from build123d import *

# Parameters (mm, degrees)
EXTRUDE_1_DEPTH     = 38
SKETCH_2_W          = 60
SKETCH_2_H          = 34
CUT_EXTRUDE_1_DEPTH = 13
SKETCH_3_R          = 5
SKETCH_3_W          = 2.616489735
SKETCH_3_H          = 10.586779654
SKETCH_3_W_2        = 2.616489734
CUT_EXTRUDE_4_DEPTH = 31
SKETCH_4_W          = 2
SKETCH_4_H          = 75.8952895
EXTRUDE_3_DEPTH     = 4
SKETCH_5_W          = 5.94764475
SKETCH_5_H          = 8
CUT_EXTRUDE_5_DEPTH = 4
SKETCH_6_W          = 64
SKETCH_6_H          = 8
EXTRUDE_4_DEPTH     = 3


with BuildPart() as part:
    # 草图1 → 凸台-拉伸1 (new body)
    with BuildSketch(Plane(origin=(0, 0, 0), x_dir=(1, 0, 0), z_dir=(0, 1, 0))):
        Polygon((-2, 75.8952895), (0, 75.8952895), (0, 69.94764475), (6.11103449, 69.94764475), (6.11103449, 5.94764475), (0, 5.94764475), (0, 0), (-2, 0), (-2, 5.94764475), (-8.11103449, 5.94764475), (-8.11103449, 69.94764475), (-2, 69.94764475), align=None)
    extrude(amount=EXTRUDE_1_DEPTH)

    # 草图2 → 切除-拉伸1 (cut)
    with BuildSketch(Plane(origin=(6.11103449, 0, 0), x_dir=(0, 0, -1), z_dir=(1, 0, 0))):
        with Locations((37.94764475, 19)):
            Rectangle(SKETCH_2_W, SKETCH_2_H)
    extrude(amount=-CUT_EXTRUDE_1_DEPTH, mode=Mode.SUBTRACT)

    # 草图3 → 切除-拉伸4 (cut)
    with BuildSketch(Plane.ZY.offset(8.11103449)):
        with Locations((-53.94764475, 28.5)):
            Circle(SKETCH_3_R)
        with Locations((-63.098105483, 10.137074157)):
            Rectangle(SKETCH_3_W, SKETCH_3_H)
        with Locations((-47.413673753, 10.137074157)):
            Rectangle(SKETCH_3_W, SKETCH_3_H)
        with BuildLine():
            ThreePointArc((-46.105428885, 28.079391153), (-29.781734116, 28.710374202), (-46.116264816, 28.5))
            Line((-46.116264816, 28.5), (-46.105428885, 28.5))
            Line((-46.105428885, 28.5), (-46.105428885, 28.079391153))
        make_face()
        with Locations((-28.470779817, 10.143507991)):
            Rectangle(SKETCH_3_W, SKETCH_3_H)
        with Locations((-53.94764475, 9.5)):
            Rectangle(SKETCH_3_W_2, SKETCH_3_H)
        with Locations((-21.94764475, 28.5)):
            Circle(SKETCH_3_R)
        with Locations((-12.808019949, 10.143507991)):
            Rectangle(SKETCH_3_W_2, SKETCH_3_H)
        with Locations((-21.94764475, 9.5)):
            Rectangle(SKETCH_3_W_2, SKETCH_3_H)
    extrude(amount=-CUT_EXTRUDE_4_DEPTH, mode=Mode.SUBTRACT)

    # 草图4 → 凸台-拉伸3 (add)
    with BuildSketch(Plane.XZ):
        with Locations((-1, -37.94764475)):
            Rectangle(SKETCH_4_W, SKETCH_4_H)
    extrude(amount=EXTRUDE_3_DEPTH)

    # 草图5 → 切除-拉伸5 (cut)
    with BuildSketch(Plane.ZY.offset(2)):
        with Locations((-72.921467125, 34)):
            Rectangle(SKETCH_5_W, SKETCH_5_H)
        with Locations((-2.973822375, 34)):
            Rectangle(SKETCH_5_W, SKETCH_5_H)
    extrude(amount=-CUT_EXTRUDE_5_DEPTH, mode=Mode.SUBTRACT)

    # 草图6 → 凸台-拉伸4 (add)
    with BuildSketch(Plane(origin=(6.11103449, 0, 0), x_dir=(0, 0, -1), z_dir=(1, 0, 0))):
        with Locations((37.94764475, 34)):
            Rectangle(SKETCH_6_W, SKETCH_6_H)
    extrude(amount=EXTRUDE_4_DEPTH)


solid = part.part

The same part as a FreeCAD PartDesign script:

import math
import FreeCAD as App
import Part
import Sketcher

V = App.Vector

doc = App.newDocument("Part")
body = doc.addObject("PartDesign::Body", "Body")

sketch1 = doc.addObject("Sketcher::SketchObject", "Sketch")
body.addObject(sketch1)
sketch1.AttachmentSupport = (doc.XZ_Plane, [""])
sketch1.MapMode = "FlatFace"
sketch1.addGeometry(Part.LineSegment(V(0, -75.9, 0), V(-2, -75.9, 0)), False)
sketch1.addGeometry(Part.LineSegment(V(-2, -75.9, 0), V(-2, -69.9, 0)), False)
sketch1.addGeometry(Part.LineSegment(V(-2, -69.9, 0), V(-8.1, -69.9, 0)), False)
sketch1.addGeometry(Part.LineSegment(V(-8.1, -69.9, 0), V(-8.1, -5.9, 0)), False)
sketch1.addGeometry(Part.LineSegment(V(-8.1, -5.9, 0), V(-2, -5.9, 0)), False)
sketch1.addGeometry(Part.LineSegment(V(-2, -5.9, 0), V(-2, 0, 0)), False)
sketch1.addGeometry(Part.LineSegment(V(-2, 0, 0), V(0, 0, 0)), False)
sketch1.addGeometry(Part.LineSegment(V(0, 0, 0), V(0, -5.9, 0)), False)
sketch1.addGeometry(Part.LineSegment(V(0, -5.9, 0), V(6.1, -5.9, 0)), False)
sketch1.addGeometry(Part.LineSegment(V(6.1, -5.9, 0), V(6.1, -69.9, 0)), False)
sketch1.addGeometry(Part.LineSegment(V(6.1, -69.9, 0), V(0, -69.9, 0)), False)
sketch1.addGeometry(Part.LineSegment(V(0, -69.9, 0), V(0, -75.9, 0)), False)
sketch1.addConstraint(Sketcher.Constraint("Coincident", 0, 2, 1, 1))
sketch1.addConstraint(Sketcher.Constraint("Coincident", 1, 2, 2, 1))
sketch1.addConstraint(Sketcher.Constraint("Coincident", 2, 2, 3, 1))
sketch1.addConstraint(Sketcher.Constraint("Coincident", 3, 2, 4, 1))
sketch1.addConstraint(Sketcher.Constraint("Coincident", 4, 2, 5, 1))
sketch1.addConstraint(Sketcher.Constraint("Coincident", 5, 2, 6, 1))
sketch1.addConstraint(Sketcher.Constraint("Coincident", 6, 2, 7, 1))
sketch1.addConstraint(Sketcher.Constraint("Coincident", 7, 2, 8, 1))
sketch1.addConstraint(Sketcher.Constraint("Coincident", 8, 2, 9, 1))
sketch1.addConstraint(Sketcher.Constraint("Coincident", 9, 2, 10, 1))
sketch1.addConstraint(Sketcher.Constraint("Coincident", 10, 2, 11, 1))
sketch1.addConstraint(Sketcher.Constraint("Coincident", 11, 2, 0, 1))
sketch1.addConstraint(Sketcher.Constraint("Horizontal", 0))
sketch1.addConstraint(Sketcher.Constraint("Vertical", 1))
sketch1.addConstraint(Sketcher.Constraint("Horizontal", 2))
sketch1.addConstraint(Sketcher.Constraint("Vertical", 3))
sketch1.addConstraint(Sketcher.Constraint("Horizontal", 4))
sketch1.addConstraint(Sketcher.Constraint("Vertical", 5))
sketch1.addConstraint(Sketcher.Constraint("Horizontal", 6))
sketch1.addConstraint(Sketcher.Constraint("Vertical", 7))
sketch1.addConstraint(Sketcher.Constraint("Horizontal", 8))
sketch1.addConstraint(Sketcher.Constraint("Vertical", 9))
sketch1.addConstraint(Sketcher.Constraint("Horizontal", 10))
sketch1.addConstraint(Sketcher.Constraint("Vertical", 11))
sketch1.addConstraint(Sketcher.Constraint("Coincident", 6, 2, -1, 1))
sketch1.addConstraint(Sketcher.Constraint("PointOnObject", 10, 2, -2))
sketch1.addConstraint(Sketcher.Constraint("Horizontal", 4, 2, 7, 2))
sketch1.addConstraint(Sketcher.Constraint("Horizontal", 2, 2, 9, 2))
sketch1.addConstraint(Sketcher.Constraint("Vertical", 1, 2, 4, 2))
sketch1.addConstraint(Sketcher.Constraint("Equal", 4, 8))
sketch1.addConstraint(Sketcher.Constraint("Equal", 1, 5))
sketch1.addConstraint(Sketcher.Constraint("DistanceX", 0, 2, 0, 1, 2.0))
sketch1.addConstraint(Sketcher.Constraint("DistanceY", 3, 1, 3, 2, 64.0))
sketch1.addConstraint(Sketcher.Constraint("DistanceX", 2, 2, 2, 1, 6.111034))
sketch1.addConstraint(Sketcher.Constraint("DistanceY", 1, 1, 1, 2, 5.947645))
pad1 = doc.addObject("PartDesign::Pad", "Pad")
body.addObject(pad1)
pad1.Profile = sketch1
pad1.Length = 38
pad1.Reversed = True

sketch2 = doc.addObject("Sketcher::SketchObject", "Sketch001")
body.addObject(sketch2)
sketch2.AttachmentSupport = (doc.YZ_Plane, [""])
sketch2.MapMode = "FlatFace"
sketch2.AttachmentOffset = App.Placement(V(0, 0, 6.111034), App.Rotation())
sketch2.addGeometry(Part.LineSegment(V(36, -8, 0), V(2, -8, 0)), False)
sketch2.addGeometry(Part.LineSegment(V(2, -8, 0), V(2, -68, 0)), False)
sketch2.addGeometry(Part.LineSegment(V(2, -68, 0), V(36, -68, 0)), False)
sketch2.addGeometry(Part.LineSegment(V(36, -68, 0), V(36, -8, 0)), False)
sketch2.addConstraint(Sketcher.Constraint("Coincident", 0, 2, 1, 1))
sketch2.addConstraint(Sketcher.Constraint("Coincident", 1, 2, 2, 1))
sketch2.addConstraint(Sketcher.Constraint("Coincident", 2, 2, 3, 1))
sketch2.addConstraint(Sketcher.Constraint("Coincident", 3, 2, 0, 1))
sketch2.addConstraint(Sketcher.Constraint("Horizontal", 0))
sketch2.addConstraint(Sketcher.Constraint("Vertical", 1))
sketch2.addConstraint(Sketcher.Constraint("Horizontal", 2))
sketch2.addConstraint(Sketcher.Constraint("Vertical", 3))
sketch2.addConstraint(Sketcher.Constraint("DistanceX", 0, 2, 0, 1, 34.0))
sketch2.addConstraint(Sketcher.Constraint("DistanceY", 1, 2, 1, 1, 60.0))
sketch2.addConstraint(Sketcher.Constraint("DistanceX", -1, 1, 0, 2, 2.0))
sketch2.addConstraint(Sketcher.Constraint("DistanceY", 0, 2, -1, 1, 7.947645))
pocket1 = doc.addObject("PartDesign::Pocket", "Pocket")
body.addObject(pocket1)
pocket1.Profile = sketch2
pocket1.Length = 13

sketch3 = doc.addObject("Sketcher::SketchObject", "Sketch002")
body.addObject(sketch3)
sketch3.AttachmentSupport = (doc.YZ_Plane, [""])
sketch3.MapMode = "FlatFace"
sketch3.AttachmentOffset = App.Placement(V(0, 0, -8.111034), App.Rotation())
sketch3.addGeometry(Part.Circle(V(28.5, -53.948, 0), V(0, 0, 1), 5), False)
sketch3.addGeometry(Part.LineSegment(V(15.43, -64.406, 0), V(4.844, -64.406, 0)), False)
sketch3.addGeometry(Part.LineSegment(V(4.844, -64.406, 0), V(4.844, -61.79, 0)), False)
sketch3.addGeometry(Part.LineSegment(V(4.844, -61.79, 0), V(15.43, -61.79, 0)), False)
sketch3.addGeometry(Part.LineSegment(V(15.43, -61.79, 0), V(15.43, -64.406, 0)), False)
sketch3.addGeometry(Part.LineSegment(V(15.43, -48.722, 0), V(4.844, -48.722, 0)), False)
sketch3.addGeometry(Part.LineSegment(V(4.844, -48.722, 0), V(4.844, -46.105, 0)), False)
sketch3.addGeometry(Part.LineSegment(V(4.844, -46.105, 0), V(15.43, -46.105, 0)), False)
sketch3.addGeometry(Part.LineSegment(V(15.43, -46.105, 0), V(15.43, -48.722, 0)), False)
sketch3.addGeometry(Part.ArcOfCircle(Part.Circle(V(28.5, -37.948, 0), V(0, 0, 1), 8.169), math.radians(-90), math.radians(267)), False)
sketch3.addGeometry(Part.LineSegment(V(28.5, -46.116, 0), V(28.5, -46.105, 0)), False)
sketch3.addGeometry(Part.LineSegment(V(28.5, -46.105, 0), V(28.079, -46.105, 0)), False)
sketch3.addGeometry(Part.LineSegment(V(15.437, -29.779, 0), V(4.85, -29.779, 0)), False)
sketch3.addGeometry(Part.LineSegment(V(4.85, -29.779, 0), V(4.85, -27.163, 0)), False)
sketch3.addGeometry(Part.LineSegment(V(4.85, -27.163, 0), V(15.437, -27.163, 0)), False)
sketch3.addGeometry(Part.LineSegment(V(15.437, -27.163, 0), V(15.437, -29.779, 0)), False)
sketch3.addGeometry(Part.LineSegment(V(14.793, -55.256, 0), V(4.207, -55.256, 0)), False)
sketch3.addGeometry(Part.LineSegment(V(4.207, -55.256, 0), V(4.207, -52.639, 0)), False)
sketch3.addGeometry(Part.LineSegment(V(4.207, -52.639, 0), V(14.793, -52.639, 0)), False)
sketch3.addGeometry(Part.LineSegment(V(14.793, -52.639, 0), V(14.793, -55.256, 0)), False)
sketch3.addGeometry(Part.Circle(V(28.5, -21.948, 0), V(0, 0, 1), 5), False)
sketch3.addGeometry(Part.LineSegment(V(15.437, -14.116, 0), V(4.85, -14.116, 0)), False)
sketch3.addGeometry(Part.LineSegment(V(4.85, -14.116, 0), V(4.85, -11.5, 0)), False)
sketch3.addGeometry(Part.LineSegment(V(4.85, -11.5, 0), V(15.437, -11.5, 0)), False)
sketch3.addGeometry(Part.LineSegment(V(15.437, -11.5, 0), V(15.437, -14.116, 0)), False)
sketch3.addGeometry(Part.LineSegment(V(14.793, -23.256, 0), V(4.207, -23.256, 0)), False)
sketch3.addGeometry(Part.LineSegment(V(4.207, -23.256, 0), V(4.207, -20.639, 0)), False)
sketch3.addGeometry(Part.LineSegment(V(4.207, -20.639, 0), V(14.793, -20.639, 0)), False)
sketch3.addGeometry(Part.LineSegment(V(14.793, -20.639, 0), V(14.793, -23.256, 0)), False)
sketch3.addConstraint(Sketcher.Constraint("Coincident", 1, 2, 2, 1))
sketch3.addConstraint(Sketcher.Constraint("Coincident", 2, 2, 3, 1))
sketch3.addConstraint(Sketcher.Constraint("Coincident", 3, 2, 4, 1))
sketch3.addConstraint(Sketcher.Constraint("Coincident", 4, 2, 1, 1))
sketch3.addConstraint(Sketcher.Constraint("Coincident", 5, 2, 6, 1))
sketch3.addConstraint(Sketcher.Constraint("Coincident", 6, 2, 7, 1))
sketch3.addConstraint(Sketcher.Constraint("Coincident", 7, 2, 8, 1))
sketch3.addConstraint(Sketcher.Constraint("Coincident", 8, 2, 5, 1))
sketch3.addConstraint(Sketcher.Constraint("Coincident", 9, 1, 10, 1))
sketch3.addConstraint(Sketcher.Constraint("Coincident", 10, 2, 11, 1))
sketch3.addConstraint(Sketcher.Constraint("Coincident", 11, 2, 9, 2))
sketch3.addConstraint(Sketcher.Constraint("Coincident", 12, 2, 13, 1))
sketch3.addConstraint(Sketcher.Constraint("Coincident", 13, 2, 14, 1))
sketch3.addConstraint(Sketcher.Constraint("Coincident", 14, 2, 15, 1))
sketch3.addConstraint(Sketcher.Constraint("Coincident", 15, 2, 12, 1))
sketch3.addConstraint(Sketcher.Constraint("Coincident", 16, 2, 17, 1))
sketch3.addConstraint(Sketcher.Constraint("Coincident", 17, 2, 18, 1))
sketch3.addConstraint(Sketcher.Constraint("Coincident", 18, 2, 19, 1))
sketch3.addConstraint(Sketcher.Constraint("Coincident", 19, 2, 16, 1))
sketch3.addConstraint(Sketcher.Constraint("Coincident", 21, 2, 22, 1))
sketch3.addConstraint(Sketcher.Constraint("Coincident", 22, 2, 23, 1))
sketch3.addConstraint(Sketcher.Constraint("Coincident", 23, 2, 24, 1))
sketch3.addConstraint(Sketcher.Constraint("Coincident", 24, 2, 21, 1))
sketch3.addConstraint(Sketcher.Constraint("Coincident", 25, 2, 26, 1))
sketch3.addConstraint(Sketcher.Constraint("Coincident", 26, 2, 27, 1))
sketch3.addConstraint(Sketcher.Constraint("Coincident", 27, 2, 28, 1))
sketch3.addConstraint(Sketcher.Constraint("Coincident", 28, 2, 25, 1))
sketch3.addConstraint(Sketcher.Constraint("Horizontal", 1))
sketch3.addConstraint(Sketcher.Constraint("Vertical", 2))
sketch3.addConstraint(Sketcher.Constraint("Horizontal", 3))
sketch3.addConstraint(Sketcher.Constraint("Vertical", 4))
sketch3.addConstraint(Sketcher.Constraint("Horizontal", 5))
sketch3.addConstraint(Sketcher.Constraint("Vertical", 6))
sketch3.addConstraint(Sketcher.Constraint("Horizontal", 7))
sketch3.addConstraint(Sketcher.Constraint("Vertical", 8))
sketch3.addConstraint(Sketcher.Constraint("Vertical", 10))
sketch3.addConstraint(Sketcher.Constraint("Horizontal", 11))
sketch3.addConstraint(Sketcher.Constraint("Horizontal", 12))
sketch3.addConstraint(Sketcher.Constraint("Vertical", 13))
sketch3.addConstraint(Sketcher.Constraint("Horizontal", 14))
sketch3.addConstraint(Sketcher.Constraint("Vertical", 15))
sketch3.addConstraint(Sketcher.Constraint("Horizontal", 16))
sketch3.addConstraint(Sketcher.Constraint("Vertical", 17))
sketch3.addConstraint(Sketcher.Constraint("Horizontal", 18))
sketch3.addConstraint(Sketcher.Constraint("Vertical", 19))
sketch3.addConstraint(Sketcher.Constraint("Horizontal", 21))
sketch3.addConstraint(Sketcher.Constraint("Vertical", 22))
sketch3.addConstraint(Sketcher.Constraint("Horizontal", 23))
sketch3.addConstraint(Sketcher.Constraint("Vertical", 24))
sketch3.addConstraint(Sketcher.Constraint("Horizontal", 25))
sketch3.addConstraint(Sketcher.Constraint("Vertical", 26))
sketch3.addConstraint(Sketcher.Constraint("Horizontal", 27))
sketch3.addConstraint(Sketcher.Constraint("Vertical", 28))
sketch3.addConstraint(Sketcher.Constraint("Equal", 0, 20))
sketch3.addConstraint(Sketcher.Constraint("Horizontal", 7, 2, 10, 2))
sketch3.addConstraint(Sketcher.Constraint("Vertical", 0, 3, 9, 3))
sketch3.addConstraint(Sketcher.Constraint("Vertical", 9, 3, 20, 3))
sketch3.addConstraint(Sketcher.Constraint("Vertical", 2, 2, 5, 2))
sketch3.addConstraint(Sketcher.Constraint("Vertical", 4, 2, 7, 2))
sketch3.addConstraint(Sketcher.Constraint("Vertical", 20, 3, 9, 1))
sketch3.addConstraint(Sketcher.Constraint("Vertical", 13, 2, 21, 2))
sketch3.addConstraint(Sketcher.Constraint("Vertical", 15, 2, 23, 2))
sketch3.addConstraint(Sketcher.Constraint("Vertical", 17, 2, 25, 2))
sketch3.addConstraint(Sketcher.Constraint("Vertical", 19, 2, 27, 2))
sketch3.addConstraint(Sketcher.Constraint("Equal", 7, 12))
sketch3.addConstraint(Sketcher.Constraint("Equal", 14, 16))
sketch3.addConstraint(Sketcher.Constraint("Equal", 4, 6))
sketch3.addConstraint(Sketcher.Constraint("Equal", 8, 13))
sketch3.addConstraint(Sketcher.Constraint("Equal", 15, 17))
sketch3.addConstraint(Sketcher.Constraint("Equal", 19, 22))
sketch3.addConstraint(Sketcher.Constraint("Equal", 24, 26))
sketch3.addConstraint(Sketcher.Constraint("Diameter", 0, 10.0))
sketch3.addConstraint(Sketcher.Constraint("DistanceY", 0, 3, 9, 3, 16.0))
sketch3.addConstraint(Sketcher.Constraint("DistanceY", 9, 3, 20, 3, 16.0))
sketch3.addConstraint(Sketcher.Constraint("DistanceX", -1, 1, 0, 3, 28.5))
sketch3.addConstraint(Sketcher.Constraint("Radius", 9, 8.16862))
sketch3.addConstraint(Sketcher.Constraint("DistanceX", 1, 2, 1, 1, 10.58678))
sketch3.addConstraint(Sketcher.Constraint("DistanceX", 11, 2, 11, 1, 0.420609))
sketch3.addConstraint(Sketcher.Constraint("DistanceY", 2, 1, 2, 2, 2.61649))
sketch3.addConstraint(Sketcher.Constraint("DistanceY", 17, 2, -1, 1, 52.6394))
sketch3.addConstraint(Sketcher.Constraint("DistanceY", 26, 2, -1, 1, 20.6394))
sketch3.addConstraint(Sketcher.Constraint("DistanceY", 1, 2, -1, 1, 64.40635))
sketch3.addConstraint(Sketcher.Constraint("DistanceY", 5, 2, -1, 1, 48.721919))
sketch3.addConstraint(Sketcher.Constraint("DistanceX", -1, 1, 12, 2, 4.850118))
sketch3.addConstraint(Sketcher.Constraint("DistanceX", -1, 1, 16, 2, 4.20661))
sketch3.addConstraint(Sketcher.Constraint("DistanceY", 12, 2, 20, 3, 7.83138))
sketch3.addConstraint(Sketcher.Constraint("DistanceY", 13, 2, 21, 2, 13.04627))
sketch3.addConstraint(Sketcher.Constraint("DistanceX", -1, 1, 1, 2, 4.843684))
pocket2 = doc.addObject("PartDesign::Pocket", "Pocket001")
body.addObject(pocket2)
pocket2.Profile = sketch3
pocket2.Length = 31
pocket2.Reversed = True

sketch4 = doc.addObject("Sketcher::SketchObject", "Sketch003")
body.addObject(sketch4)
sketch4.AttachmentSupport = (doc.XZ_Plane, [""])
sketch4.MapMode = "FlatFace"
sketch4.addGeometry(Part.LineSegment(V(-2, 0, 0), V(-2, -75.9, 0)), False)
sketch4.addGeometry(Part.LineSegment(V(-2, -75.9, 0), V(0, -75.9, 0)), False)
sketch4.addGeometry(Part.LineSegment(V(0, -75.9, 0), V(0, 0, 0)), False)
sketch4.addGeometry(Part.LineSegment(V(0, 0, 0), V(-2, 0, 0)), False)
sketch4.addConstraint(Sketcher.Constraint("Coincident", 0, 2, 1, 1))
sketch4.addConstraint(Sketcher.Constraint("Coincident", 1, 2, 2, 1))
sketch4.addConstraint(Sketcher.Constraint("Coincident", 2, 2, 3, 1))
sketch4.addConstraint(Sketcher.Constraint("Coincident", 3, 2, 0, 1))
sketch4.addConstraint(Sketcher.Constraint("Vertical", 0))
sketch4.addConstraint(Sketcher.Constraint("Horizontal", 1))
sketch4.addConstraint(Sketcher.Constraint("Vertical", 2))
sketch4.addConstraint(Sketcher.Constraint("Horizontal", 3))
sketch4.addConstraint(Sketcher.Constraint("Coincident", 2, 2, -1, 1))
sketch4.addConstraint(Sketcher.Constraint("DistanceX", 1, 1, 1, 2, 2.0))
sketch4.addConstraint(Sketcher.Constraint("DistanceY", 0, 2, 0, 1, 75.89529))
pad2 = doc.addObject("PartDesign::Pad", "Pad001")
body.addObject(pad2)
pad2.Profile = sketch4
pad2.Length = 4

sketch5 = doc.addObject("Sketcher::SketchObject", "Sketch004")
body.addObject(sketch5)
sketch5.AttachmentSupport = (doc.YZ_Plane, [""])
sketch5.MapMode = "FlatFace"
sketch5.AttachmentOffset = App.Placement(V(0, 0, -2), App.Rotation())
sketch5.addGeometry(Part.LineSegment(V(38, -76, 0), V(30, -76, 0)), False)
sketch5.addGeometry(Part.LineSegment(V(30, -76, 0), V(30, -70, 0)), False)
sketch5.addGeometry(Part.LineSegment(V(30, -70, 0), V(38, -70, 0)), False)
sketch5.addGeometry(Part.LineSegment(V(38, -70, 0), V(38, -76, 0)), False)
sketch5.addGeometry(Part.LineSegment(V(38, -6, 0), V(30, -6, 0)), False)
sketch5.addGeometry(Part.LineSegment(V(30, -6, 0), V(30, 0, 0)), False)
sketch5.addGeometry(Part.LineSegment(V(30, 0, 0), V(38, 0, 0)), False)
sketch5.addGeometry(Part.LineSegment(V(38, 0, 0), V(38, -6, 0)), False)
sketch5.addConstraint(Sketcher.Constraint("Coincident", 0, 2, 1, 1))
sketch5.addConstraint(Sketcher.Constraint("Coincident", 1, 2, 2, 1))
sketch5.addConstraint(Sketcher.Constraint("Coincident", 2, 2, 3, 1))
sketch5.addConstraint(Sketcher.Constraint("Coincident", 3, 2, 0, 1))
sketch5.addConstraint(Sketcher.Constraint("Coincident", 4, 2, 5, 1))
sketch5.addConstraint(Sketcher.Constraint("Coincident", 5, 2, 6, 1))
sketch5.addConstraint(Sketcher.Constraint("Coincident", 6, 2, 7, 1))
sketch5.addConstraint(Sketcher.Constraint("Coincident", 7, 2, 4, 1))
sketch5.addConstraint(Sketcher.Constraint("Horizontal", 0))
sketch5.addConstraint(Sketcher.Constraint("Vertical", 1))
sketch5.addConstraint(Sketcher.Constraint("Horizontal", 2))
sketch5.addConstraint(Sketcher.Constraint("Vertical", 3))
sketch5.addConstraint(Sketcher.Constraint("Horizontal", 4))
sketch5.addConstraint(Sketcher.Constraint("Vertical", 5))
sketch5.addConstraint(Sketcher.Constraint("Horizontal", 6))
sketch5.addConstraint(Sketcher.Constraint("Vertical", 7))
sketch5.addConstraint(Sketcher.Constraint("PointOnObject", 5, 2, -1))
sketch5.addConstraint(Sketcher.Constraint("Vertical", 1, 2, 4, 2))
sketch5.addConstraint(Sketcher.Constraint("Vertical", 3, 2, 6, 2))
sketch5.addConstraint(Sketcher.Constraint("Equal", 3, 5))
sketch5.addConstraint(Sketcher.Constraint("DistanceX", 0, 2, 0, 1, 8.0))
sketch5.addConstraint(Sketcher.Constraint("DistanceX", -1, 1, 0, 2, 30.0))
sketch5.addConstraint(Sketcher.Constraint("DistanceY", 1, 2, 4, 2, 64.0))
sketch5.addConstraint(Sketcher.Constraint("DistanceY", 1, 1, 1, 2, 5.947645))
pocket3 = doc.addObject("PartDesign::Pocket", "Pocket002")
body.addObject(pocket3)
pocket3.Profile = sketch5
pocket3.Length = 4
pocket3.Reversed = True

sketch6 = doc.addObject("Sketcher::SketchObject", "Sketch005")
body.addObject(sketch6)
sketch6.AttachmentSupport = (doc.YZ_Plane, [""])
sketch6.MapMode = "FlatFace"
sketch6.AttachmentOffset = App.Placement(V(0, 0, 6.111034), App.Rotation())
sketch6.addGeometry(Part.LineSegment(V(38, -6, 0), V(30, -6, 0)), False)
sketch6.addGeometry(Part.LineSegment(V(30, -6, 0), V(30, -70, 0)), False)
sketch6.addGeometry(Part.LineSegment(V(30, -70, 0), V(38, -70, 0)), False)
sketch6.addGeometry(Part.LineSegment(V(38, -70, 0), V(38, -6, 0)), False)
sketch6.addConstraint(Sketcher.Constraint("Coincident", 0, 2, 1, 1))
sketch6.addConstraint(Sketcher.Constraint("Coincident", 1, 2, 2, 1))
sketch6.addConstraint(Sketcher.Constraint("Coincident", 2, 2, 3, 1))
sketch6.addConstraint(Sketcher.Constraint("Coincident", 3, 2, 0, 1))
sketch6.addConstraint(Sketcher.Constraint("Horizontal", 0))
sketch6.addConstraint(Sketcher.Constraint("Vertical", 1))
sketch6.addConstraint(Sketcher.Constraint("Horizontal", 2))
sketch6.addConstraint(Sketcher.Constraint("Vertical", 3))
sketch6.addConstraint(Sketcher.Constraint("DistanceX", 0, 2, 0, 1, 8.0))
sketch6.addConstraint(Sketcher.Constraint("DistanceY", 1, 2, 1, 1, 64.0))
sketch6.addConstraint(Sketcher.Constraint("DistanceX", -1, 1, 0, 2, 30.0))
sketch6.addConstraint(Sketcher.Constraint("DistanceY", 0, 2, -1, 1, 5.947645))
pad3 = doc.addObject("PartDesign::Pad", "Pad002")
body.addObject(pad3)
pad3.Profile = sketch6
pad3.Length = 3

doc.recompute()
